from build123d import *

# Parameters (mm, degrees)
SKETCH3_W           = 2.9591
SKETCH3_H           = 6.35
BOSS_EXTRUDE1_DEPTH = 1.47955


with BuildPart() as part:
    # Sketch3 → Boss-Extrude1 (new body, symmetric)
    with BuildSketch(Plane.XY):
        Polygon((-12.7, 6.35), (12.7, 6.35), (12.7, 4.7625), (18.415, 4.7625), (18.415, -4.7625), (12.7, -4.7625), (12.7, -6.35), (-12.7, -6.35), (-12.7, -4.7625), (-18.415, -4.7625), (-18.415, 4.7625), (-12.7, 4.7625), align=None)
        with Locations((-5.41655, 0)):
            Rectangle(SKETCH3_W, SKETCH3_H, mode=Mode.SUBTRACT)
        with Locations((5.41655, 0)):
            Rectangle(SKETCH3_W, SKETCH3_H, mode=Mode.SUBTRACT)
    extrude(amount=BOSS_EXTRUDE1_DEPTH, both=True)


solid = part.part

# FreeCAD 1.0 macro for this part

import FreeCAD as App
import Part
import Sketcher
from FreeCAD import Vector
Q = App.Units.Quantity


def add_polygon(sketch, points):
    """Adds a closed chain of lines whose ends are joined by coincident constraints."""
    first, n = sketch.GeometryCount, len(points)
    for a, b in zip(points, points[1:] + points[:1]):
        sketch.addGeometry(Part.LineSegment(App.Vector(*a, 0), App.Vector(*b, 0)), False)
    for i in range(n):
        sketch.addConstraint(Sketcher.Constraint("Coincident", first + i, 2, first + (i + 1) % n, 1))

doc = App.newDocument("Part")
body = doc.addObject("PartDesign::Body", "Body")

# Sketch on XY plane
sketch1 = doc.addObject("Sketcher::SketchObject", "Sketch")
body.addObject(sketch1)
sketch1.AttachmentSupport = (doc.XY_Plane, [""])
sketch1.MapMode = "FlatFace"
add_polygon(sketch1, [(12.7, 6.35), (-12.7, 6.35), (-12.7, 4.7625), (-18.415, 4.7625), (-18.415, -4.7625), (-12.7, -4.7625), (-12.7, -6.35), (12.7, -6.35), (12.7, -4.7625), (18.415, -4.7625), (18.415, 4.7625), (12.7, 4.7625)])  # lines 0-11
add_polygon(sketch1, [(3.937, -3.175), (3.937, 3.175), (6.8961, 3.175), (6.8961, -3.175)])  # lines 12-15
add_polygon(sketch1, [(-6.8961, -3.175), (-6.8961, 3.175), (-3.937, 3.175), (-3.937, -3.175)])  # lines 16-19
sketch1.addConstraint(Sketcher.Constraint("Horizontal", 0))
sketch1.addConstraint(Sketcher.Constraint("Vertical", 1))
sketch1.addConstraint(Sketcher.Constraint("Horizontal", 2))
sketch1.addConstraint(Sketcher.Constraint("Vertical", 3))
sketch1.addConstraint(Sketcher.Constraint("Horizontal", 4))
sketch1.addConstraint(Sketcher.Constraint("Vertical", 5))
sketch1.addConstraint(Sketcher.Constraint("Horizontal", 6))
sketch1.addConstraint(Sketcher.Constraint("Vertical", 7))
sketch1.addConstraint(Sketcher.Constraint("Horizontal", 8))
sketch1.addConstraint(Sketcher.Constraint("Vertical", 9))
sketch1.addConstraint(Sketcher.Constraint("Horizontal", 10))
sketch1.addConstraint(Sketcher.Constraint("Vertical", 11))
sketch1.addConstraint(Sketcher.Constraint("Vertical", 12))
sketch1.addConstraint(Sketcher.Constraint("Horizontal", 13))
sketch1.addConstraint(Sketcher.Constraint("Vertical", 14))
sketch1.addConstraint(Sketcher.Constraint("Horizontal", 15))
sketch1.addConstraint(Sketcher.Constraint("Vertical", 16))
sketch1.addConstraint(Sketcher.Constraint("Horizontal", 17))
sketch1.addConstraint(Sketcher.Constraint("Vertical", 18))
sketch1.addConstraint(Sketcher.Constraint("Horizontal", 19))
sketch1.addConstraint(Sketcher.Constraint("Symmetric", 0, 2, 6, 2, -1, 1))
sketch1.addConstraint(Sketcher.Constraint("Symmetric", 2, 2, 8, 2, -1, 1))
sketch1.addConstraint(Sketcher.Constraint("Symmetric", 4, 2, 10, 2, -1, 1))
sketch1.addConstraint(Sketcher.Constraint("Symmetric", 14, 2, 16, 2, -1, 1))
sketch1.addConstraint(Sketcher.Constraint("Symmetric", 12, 2, 18, 2, -1, 1))
sketch1.addConstraint(Sketcher.Constraint("Symmetric", 4, 2, 7, 2, -2))
sketch1.addConstraint(Sketcher.Constraint("Horizontal", 13, 2, 16, 2))
sketch1.addConstraint(Sketcher.Constraint("DistanceX", 0, 2, 0, 1, Q("1 in")))
sketch1.addConstraint(Sketcher.Constraint("DistanceY", 12, 1, 12, 2, Q("0.25 in")))
sketch1.addConstraint(Sketcher.Constraint("DistanceY", 5, 2, 0, 2, Q("0.5 in")))
sketch1.addConstraint(Sketcher.Constraint("DistanceX", 2, 2, 2, 1, Q("0.225 in")))
sketch1.addConstraint(Sketcher.Constraint("DistanceY", 1, 2, 1, 1, Q("0.0625 in")))
sketch1.addConstraint(Sketcher.Constraint("DistanceX", 12, 2, 9, 2, Q("0.57 in")))
sketch1.addConstraint(Sketcher.Constraint("DistanceX", 13, 1, 13, 2, Q("0.1165 in")))
pad1 = doc.addObject("PartDesign::Pad", "Pad")
body.addObject(pad1)
pad1.Profile = sketch1
pad1.Length = Q("0.1165 in")
pad1.Midplane = True

doc.recompute()
